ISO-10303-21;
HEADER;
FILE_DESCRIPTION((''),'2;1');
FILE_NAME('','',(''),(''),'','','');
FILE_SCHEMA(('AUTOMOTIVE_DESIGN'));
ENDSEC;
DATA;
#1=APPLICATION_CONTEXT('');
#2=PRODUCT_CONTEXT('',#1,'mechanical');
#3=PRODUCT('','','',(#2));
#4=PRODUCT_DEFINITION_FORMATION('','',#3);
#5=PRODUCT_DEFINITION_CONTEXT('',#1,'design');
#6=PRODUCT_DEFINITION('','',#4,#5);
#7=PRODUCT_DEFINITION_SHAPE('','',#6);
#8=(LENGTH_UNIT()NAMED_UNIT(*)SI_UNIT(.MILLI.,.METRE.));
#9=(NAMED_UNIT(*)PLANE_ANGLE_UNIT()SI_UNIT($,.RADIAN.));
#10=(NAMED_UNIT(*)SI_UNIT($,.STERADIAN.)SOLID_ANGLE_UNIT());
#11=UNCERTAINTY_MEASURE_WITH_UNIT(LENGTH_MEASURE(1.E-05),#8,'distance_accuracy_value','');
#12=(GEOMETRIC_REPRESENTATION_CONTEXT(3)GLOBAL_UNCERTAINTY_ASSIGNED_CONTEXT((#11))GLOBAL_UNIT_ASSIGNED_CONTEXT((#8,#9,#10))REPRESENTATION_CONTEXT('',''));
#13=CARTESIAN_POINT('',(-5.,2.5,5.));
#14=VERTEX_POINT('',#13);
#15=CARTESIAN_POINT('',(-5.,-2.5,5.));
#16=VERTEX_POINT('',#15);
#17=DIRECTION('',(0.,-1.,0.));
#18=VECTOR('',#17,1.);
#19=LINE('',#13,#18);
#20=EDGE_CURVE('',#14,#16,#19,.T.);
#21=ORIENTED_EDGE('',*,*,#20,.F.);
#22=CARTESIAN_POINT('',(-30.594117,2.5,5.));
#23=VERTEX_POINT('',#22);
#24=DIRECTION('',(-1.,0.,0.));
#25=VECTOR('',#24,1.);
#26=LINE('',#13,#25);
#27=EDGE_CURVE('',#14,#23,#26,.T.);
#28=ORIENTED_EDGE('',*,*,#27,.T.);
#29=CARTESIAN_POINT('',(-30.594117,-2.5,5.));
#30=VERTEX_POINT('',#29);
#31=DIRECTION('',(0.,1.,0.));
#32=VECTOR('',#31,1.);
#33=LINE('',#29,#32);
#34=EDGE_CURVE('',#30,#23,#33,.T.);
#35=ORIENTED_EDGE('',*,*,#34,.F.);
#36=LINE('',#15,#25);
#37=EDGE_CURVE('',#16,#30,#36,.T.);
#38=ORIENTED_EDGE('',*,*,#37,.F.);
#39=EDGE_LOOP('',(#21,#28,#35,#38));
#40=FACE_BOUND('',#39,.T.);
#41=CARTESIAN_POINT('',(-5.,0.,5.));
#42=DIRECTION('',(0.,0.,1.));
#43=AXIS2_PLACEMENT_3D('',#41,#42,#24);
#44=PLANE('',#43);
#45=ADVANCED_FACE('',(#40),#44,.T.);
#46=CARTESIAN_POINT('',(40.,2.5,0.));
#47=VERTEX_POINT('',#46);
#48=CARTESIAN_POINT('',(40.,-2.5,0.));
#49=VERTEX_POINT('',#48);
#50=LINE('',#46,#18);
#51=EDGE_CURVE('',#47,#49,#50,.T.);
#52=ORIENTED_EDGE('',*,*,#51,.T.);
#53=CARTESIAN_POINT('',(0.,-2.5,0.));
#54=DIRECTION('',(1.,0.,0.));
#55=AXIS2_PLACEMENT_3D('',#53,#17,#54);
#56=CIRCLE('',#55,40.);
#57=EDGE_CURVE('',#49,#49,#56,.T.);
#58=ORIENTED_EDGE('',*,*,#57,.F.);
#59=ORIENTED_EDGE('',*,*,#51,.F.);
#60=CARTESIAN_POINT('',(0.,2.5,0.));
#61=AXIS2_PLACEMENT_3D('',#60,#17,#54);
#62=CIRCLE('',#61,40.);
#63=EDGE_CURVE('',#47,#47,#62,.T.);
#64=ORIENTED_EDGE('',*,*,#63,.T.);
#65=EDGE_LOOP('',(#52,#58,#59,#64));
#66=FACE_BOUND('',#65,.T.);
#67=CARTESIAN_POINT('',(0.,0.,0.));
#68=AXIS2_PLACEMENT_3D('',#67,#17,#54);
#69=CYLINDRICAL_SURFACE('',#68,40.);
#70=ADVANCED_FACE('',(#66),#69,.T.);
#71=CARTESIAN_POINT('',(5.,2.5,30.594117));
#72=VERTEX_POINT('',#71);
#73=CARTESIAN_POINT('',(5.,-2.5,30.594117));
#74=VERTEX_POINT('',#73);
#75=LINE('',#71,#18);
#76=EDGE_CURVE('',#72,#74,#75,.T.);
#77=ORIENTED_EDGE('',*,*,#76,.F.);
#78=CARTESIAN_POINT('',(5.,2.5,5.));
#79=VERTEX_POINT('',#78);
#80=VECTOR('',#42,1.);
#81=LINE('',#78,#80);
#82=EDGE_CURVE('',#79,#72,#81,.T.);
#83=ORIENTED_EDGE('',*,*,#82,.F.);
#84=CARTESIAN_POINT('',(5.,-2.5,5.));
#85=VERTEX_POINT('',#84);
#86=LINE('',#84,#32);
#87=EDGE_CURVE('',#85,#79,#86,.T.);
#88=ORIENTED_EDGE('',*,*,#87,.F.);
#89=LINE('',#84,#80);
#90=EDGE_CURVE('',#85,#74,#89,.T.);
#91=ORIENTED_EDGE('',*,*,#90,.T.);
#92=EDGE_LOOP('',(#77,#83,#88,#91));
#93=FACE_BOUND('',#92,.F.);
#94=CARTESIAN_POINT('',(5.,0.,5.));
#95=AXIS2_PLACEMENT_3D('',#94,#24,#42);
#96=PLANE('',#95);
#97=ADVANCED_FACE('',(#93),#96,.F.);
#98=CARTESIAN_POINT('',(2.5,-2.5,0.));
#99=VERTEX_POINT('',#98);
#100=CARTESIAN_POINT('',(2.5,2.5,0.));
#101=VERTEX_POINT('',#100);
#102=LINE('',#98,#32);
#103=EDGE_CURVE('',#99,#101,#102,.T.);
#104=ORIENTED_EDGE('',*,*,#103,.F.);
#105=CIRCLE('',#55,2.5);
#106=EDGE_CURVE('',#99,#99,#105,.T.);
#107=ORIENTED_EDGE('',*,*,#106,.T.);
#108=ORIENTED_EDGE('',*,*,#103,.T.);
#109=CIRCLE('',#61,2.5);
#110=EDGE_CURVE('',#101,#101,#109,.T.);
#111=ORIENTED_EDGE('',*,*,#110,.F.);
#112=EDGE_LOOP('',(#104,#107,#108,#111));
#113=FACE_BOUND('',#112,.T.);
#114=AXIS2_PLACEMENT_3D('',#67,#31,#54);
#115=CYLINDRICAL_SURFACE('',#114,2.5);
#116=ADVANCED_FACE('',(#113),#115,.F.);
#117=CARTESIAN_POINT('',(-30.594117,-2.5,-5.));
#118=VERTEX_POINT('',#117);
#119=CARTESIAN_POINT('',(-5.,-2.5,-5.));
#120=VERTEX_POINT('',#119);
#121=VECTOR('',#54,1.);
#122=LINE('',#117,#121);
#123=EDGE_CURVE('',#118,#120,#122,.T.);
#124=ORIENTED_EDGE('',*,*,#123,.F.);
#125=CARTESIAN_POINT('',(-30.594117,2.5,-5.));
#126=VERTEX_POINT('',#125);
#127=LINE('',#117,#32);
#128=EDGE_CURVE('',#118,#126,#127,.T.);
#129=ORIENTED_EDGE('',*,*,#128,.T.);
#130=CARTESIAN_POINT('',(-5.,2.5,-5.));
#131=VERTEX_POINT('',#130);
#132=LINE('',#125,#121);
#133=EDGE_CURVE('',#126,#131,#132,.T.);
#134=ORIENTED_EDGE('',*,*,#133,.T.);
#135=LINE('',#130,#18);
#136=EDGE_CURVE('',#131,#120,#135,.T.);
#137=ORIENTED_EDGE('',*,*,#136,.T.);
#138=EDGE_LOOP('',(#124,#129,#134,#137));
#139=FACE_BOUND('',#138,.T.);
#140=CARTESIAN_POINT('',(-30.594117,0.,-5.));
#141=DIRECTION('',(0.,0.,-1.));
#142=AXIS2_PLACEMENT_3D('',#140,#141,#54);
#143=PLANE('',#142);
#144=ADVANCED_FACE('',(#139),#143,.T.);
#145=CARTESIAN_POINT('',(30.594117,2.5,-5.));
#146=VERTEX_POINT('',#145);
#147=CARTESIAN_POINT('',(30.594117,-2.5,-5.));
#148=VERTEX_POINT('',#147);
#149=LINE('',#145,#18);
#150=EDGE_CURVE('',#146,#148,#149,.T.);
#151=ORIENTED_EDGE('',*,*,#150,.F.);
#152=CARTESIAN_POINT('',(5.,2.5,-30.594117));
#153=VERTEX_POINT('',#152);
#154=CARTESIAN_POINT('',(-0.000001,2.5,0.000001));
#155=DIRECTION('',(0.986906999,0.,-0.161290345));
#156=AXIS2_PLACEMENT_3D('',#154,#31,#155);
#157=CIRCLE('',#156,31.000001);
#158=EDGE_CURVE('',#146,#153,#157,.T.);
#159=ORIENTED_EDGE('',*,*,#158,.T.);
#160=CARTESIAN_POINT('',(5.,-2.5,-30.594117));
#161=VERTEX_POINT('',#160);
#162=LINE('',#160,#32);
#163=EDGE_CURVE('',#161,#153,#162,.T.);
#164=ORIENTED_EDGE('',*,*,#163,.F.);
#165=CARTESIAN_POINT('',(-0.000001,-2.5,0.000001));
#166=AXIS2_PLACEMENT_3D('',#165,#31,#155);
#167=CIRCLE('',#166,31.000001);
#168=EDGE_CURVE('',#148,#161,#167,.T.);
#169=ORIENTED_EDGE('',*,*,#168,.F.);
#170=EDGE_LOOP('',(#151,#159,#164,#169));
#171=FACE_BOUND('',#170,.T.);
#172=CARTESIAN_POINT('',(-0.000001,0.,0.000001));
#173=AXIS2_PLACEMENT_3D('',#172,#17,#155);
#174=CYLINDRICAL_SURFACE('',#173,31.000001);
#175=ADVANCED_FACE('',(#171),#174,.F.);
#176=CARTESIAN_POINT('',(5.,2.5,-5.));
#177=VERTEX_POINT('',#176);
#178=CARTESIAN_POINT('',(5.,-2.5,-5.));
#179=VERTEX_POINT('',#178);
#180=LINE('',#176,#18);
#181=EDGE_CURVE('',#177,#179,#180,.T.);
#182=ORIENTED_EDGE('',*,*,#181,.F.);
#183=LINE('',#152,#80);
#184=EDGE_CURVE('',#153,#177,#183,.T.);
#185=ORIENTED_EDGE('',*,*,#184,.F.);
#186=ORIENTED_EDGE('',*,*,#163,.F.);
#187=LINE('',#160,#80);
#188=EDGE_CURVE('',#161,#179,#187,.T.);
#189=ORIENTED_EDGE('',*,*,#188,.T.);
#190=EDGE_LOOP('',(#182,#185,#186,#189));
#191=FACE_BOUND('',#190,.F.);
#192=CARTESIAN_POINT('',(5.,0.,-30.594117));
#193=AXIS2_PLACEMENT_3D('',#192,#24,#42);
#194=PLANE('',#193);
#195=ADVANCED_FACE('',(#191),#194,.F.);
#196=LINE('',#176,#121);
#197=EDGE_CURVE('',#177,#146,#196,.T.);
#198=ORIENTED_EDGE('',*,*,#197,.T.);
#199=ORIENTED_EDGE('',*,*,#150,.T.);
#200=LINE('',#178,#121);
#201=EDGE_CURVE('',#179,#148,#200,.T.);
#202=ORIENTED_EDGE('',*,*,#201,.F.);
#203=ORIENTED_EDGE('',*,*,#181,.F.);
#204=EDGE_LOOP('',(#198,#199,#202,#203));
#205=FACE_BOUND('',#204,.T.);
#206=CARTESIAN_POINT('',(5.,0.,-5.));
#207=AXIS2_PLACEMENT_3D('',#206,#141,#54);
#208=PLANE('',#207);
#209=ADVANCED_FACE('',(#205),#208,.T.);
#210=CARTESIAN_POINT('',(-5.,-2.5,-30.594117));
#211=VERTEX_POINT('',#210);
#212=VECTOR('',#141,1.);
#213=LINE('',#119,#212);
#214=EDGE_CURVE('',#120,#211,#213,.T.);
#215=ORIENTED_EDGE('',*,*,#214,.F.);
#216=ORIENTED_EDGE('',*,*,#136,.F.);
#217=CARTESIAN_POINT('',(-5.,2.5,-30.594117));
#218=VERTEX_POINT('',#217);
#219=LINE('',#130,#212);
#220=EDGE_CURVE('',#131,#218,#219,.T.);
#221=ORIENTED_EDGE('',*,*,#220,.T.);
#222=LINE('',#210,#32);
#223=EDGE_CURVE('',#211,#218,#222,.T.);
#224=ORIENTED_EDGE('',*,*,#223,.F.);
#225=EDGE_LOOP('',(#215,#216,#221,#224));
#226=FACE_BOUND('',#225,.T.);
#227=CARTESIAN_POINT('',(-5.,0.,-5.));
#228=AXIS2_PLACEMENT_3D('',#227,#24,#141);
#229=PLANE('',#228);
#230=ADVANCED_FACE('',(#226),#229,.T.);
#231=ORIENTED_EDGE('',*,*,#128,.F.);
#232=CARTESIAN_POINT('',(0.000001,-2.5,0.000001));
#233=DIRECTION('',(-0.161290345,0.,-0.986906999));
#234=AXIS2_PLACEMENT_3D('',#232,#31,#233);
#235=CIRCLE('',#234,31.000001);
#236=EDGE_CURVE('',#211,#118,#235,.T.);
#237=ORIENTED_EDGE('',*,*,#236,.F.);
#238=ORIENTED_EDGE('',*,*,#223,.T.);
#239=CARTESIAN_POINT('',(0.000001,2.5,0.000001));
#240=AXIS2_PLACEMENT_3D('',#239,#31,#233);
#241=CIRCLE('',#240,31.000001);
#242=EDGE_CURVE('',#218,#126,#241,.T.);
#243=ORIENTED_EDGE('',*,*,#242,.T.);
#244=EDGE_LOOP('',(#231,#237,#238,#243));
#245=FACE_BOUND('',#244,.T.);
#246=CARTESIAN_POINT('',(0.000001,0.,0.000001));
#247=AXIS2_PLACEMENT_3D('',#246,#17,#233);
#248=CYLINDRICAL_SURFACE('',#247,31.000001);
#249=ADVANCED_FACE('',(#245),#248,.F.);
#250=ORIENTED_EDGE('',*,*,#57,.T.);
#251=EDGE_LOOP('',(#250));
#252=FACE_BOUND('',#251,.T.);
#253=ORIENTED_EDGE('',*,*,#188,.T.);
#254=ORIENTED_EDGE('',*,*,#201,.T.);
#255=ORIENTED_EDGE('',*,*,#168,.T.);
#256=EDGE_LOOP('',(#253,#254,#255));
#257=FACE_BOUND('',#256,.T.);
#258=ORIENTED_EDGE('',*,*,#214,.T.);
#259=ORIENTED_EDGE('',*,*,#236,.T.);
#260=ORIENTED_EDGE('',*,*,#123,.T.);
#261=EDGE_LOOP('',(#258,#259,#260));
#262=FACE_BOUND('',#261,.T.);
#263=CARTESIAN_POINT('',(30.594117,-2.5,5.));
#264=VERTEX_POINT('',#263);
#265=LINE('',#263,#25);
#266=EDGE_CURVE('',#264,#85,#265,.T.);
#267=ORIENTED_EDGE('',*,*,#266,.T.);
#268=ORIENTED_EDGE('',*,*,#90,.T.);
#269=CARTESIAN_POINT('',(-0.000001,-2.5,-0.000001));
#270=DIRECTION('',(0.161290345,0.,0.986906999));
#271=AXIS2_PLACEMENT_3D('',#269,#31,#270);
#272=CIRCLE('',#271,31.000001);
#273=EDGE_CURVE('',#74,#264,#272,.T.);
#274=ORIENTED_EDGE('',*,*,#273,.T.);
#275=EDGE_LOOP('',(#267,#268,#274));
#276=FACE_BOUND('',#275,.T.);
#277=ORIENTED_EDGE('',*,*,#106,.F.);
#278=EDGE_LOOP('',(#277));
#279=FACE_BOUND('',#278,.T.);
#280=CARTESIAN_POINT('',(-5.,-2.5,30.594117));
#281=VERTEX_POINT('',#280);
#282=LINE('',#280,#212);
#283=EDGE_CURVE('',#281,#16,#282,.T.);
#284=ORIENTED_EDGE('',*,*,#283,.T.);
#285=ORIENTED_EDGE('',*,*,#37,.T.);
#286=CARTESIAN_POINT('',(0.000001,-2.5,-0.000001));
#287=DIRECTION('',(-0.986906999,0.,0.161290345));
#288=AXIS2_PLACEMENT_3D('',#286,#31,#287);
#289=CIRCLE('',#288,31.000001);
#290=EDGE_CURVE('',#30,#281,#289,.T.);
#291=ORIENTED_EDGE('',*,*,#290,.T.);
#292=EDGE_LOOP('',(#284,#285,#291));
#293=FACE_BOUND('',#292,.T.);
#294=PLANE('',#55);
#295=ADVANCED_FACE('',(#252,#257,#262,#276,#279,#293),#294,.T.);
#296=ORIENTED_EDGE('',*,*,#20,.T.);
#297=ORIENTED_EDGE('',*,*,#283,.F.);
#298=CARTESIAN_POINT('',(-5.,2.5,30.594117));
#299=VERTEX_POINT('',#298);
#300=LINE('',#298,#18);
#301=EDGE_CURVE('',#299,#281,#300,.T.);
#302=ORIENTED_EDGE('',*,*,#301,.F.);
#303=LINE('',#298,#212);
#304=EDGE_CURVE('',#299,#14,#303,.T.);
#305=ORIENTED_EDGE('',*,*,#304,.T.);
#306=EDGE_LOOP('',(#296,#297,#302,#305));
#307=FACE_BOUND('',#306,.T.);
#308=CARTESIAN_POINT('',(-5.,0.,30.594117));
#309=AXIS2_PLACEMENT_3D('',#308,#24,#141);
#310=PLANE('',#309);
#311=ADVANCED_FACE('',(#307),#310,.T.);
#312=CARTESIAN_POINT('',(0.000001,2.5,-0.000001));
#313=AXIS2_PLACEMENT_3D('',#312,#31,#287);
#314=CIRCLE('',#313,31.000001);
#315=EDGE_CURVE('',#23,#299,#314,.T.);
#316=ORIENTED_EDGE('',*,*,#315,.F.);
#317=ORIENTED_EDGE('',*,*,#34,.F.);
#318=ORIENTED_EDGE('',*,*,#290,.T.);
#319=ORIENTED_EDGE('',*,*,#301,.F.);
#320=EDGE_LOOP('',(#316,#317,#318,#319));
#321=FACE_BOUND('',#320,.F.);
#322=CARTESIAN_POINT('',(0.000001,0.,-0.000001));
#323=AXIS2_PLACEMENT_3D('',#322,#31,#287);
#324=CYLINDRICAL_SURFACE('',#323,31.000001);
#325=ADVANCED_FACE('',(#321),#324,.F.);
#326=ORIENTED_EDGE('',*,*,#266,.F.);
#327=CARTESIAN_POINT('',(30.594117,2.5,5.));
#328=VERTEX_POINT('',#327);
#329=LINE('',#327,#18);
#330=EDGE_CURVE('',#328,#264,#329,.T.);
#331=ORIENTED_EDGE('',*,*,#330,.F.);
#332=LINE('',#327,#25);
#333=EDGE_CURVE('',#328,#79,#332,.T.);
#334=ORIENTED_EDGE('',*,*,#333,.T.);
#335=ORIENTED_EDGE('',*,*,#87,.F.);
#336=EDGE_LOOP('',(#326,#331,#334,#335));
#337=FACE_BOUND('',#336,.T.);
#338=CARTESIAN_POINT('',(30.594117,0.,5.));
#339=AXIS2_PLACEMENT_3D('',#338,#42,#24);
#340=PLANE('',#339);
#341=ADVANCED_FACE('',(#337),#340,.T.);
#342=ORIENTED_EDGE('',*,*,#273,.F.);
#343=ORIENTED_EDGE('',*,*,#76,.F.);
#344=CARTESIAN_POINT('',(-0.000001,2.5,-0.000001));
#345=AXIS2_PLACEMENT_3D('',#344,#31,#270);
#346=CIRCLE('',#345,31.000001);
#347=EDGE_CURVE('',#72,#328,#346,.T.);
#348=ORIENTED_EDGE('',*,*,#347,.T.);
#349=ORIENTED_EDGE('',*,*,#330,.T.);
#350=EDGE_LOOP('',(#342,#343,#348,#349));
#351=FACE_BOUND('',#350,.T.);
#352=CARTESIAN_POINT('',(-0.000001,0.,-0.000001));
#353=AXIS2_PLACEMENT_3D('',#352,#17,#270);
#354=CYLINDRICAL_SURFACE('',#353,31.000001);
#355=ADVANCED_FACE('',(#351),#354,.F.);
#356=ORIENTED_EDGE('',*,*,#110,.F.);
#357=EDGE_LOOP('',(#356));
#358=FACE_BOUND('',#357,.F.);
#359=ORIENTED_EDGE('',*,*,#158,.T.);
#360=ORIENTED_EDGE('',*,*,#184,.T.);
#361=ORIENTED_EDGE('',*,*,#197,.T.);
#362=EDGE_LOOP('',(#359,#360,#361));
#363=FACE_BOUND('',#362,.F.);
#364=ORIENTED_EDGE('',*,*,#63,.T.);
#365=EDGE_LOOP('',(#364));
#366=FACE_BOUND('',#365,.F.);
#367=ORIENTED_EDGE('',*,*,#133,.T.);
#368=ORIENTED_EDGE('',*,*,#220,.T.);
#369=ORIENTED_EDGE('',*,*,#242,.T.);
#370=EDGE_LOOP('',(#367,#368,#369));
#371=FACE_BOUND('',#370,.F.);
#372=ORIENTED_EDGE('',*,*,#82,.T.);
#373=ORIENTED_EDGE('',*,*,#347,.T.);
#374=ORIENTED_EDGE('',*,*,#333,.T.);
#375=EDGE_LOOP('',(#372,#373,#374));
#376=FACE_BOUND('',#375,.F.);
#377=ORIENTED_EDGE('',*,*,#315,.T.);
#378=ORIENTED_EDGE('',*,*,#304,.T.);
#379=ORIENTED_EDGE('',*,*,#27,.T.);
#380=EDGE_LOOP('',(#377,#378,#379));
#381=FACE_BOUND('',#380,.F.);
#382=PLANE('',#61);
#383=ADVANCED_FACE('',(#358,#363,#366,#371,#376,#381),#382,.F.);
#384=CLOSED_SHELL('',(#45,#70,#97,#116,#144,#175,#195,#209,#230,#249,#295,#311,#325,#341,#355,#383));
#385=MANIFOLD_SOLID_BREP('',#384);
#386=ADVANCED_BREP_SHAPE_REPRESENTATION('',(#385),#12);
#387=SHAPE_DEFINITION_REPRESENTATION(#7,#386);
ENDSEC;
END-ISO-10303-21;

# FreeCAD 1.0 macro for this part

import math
import FreeCAD as App
import Part
import Sketcher
Q = App.Units.Quantity

doc = App.newDocument("Part")
body = doc.addObject("PartDesign::Body", "Body")

# Sketch on XZ plane
sketch1 = body.newObject("Sketcher::SketchObject", "Sketch")
sketch1.AttachmentSupport = (doc.getObject("XZ_Plane"), [""])
sketch1.MapMode = "FlatFace"
sketch1.addGeometry(Part.Circle(App.Vector(0, 0, 0), App.Vector(0, 0, 1), 40), False)
sketch1.addGeometry(Part.LineSegment(App.Vector(-30.6, -5, 0), App.Vector(-5, -5, 0)), False)
sketch1.addGeometry(Part.LineSegment(App.Vector(-5, -5, 0), App.Vector(-5, -30.6, 0)), False)
sketch1.addGeometry(Part.ArcOfCircle(Part.Circle(App.Vector(0, 0, 0), App.Vector(0, 0, 1), 31), math.radians(-171), math.radians(-99)), False)
sketch1.addGeometry(Part.Circle(App.Vector(0, 0, 0), App.Vector(0, 0, 1), 2.5), False)
sketch1.addGeometry(Part.ArcOfCircle(Part.Circle(App.Vector(0, 0, 0), App.Vector(0, 0, 1), 31), math.radians(-81), math.radians(-9)), False)
sketch1.addGeometry(Part.LineSegment(App.Vector(5, -30.6, 0), App.Vector(5, -5, 0)), False)
sketch1.addGeometry(Part.LineSegment(App.Vector(5, -5, 0), App.Vector(30.6, -5, 0)), False)
sketch1.addGeometry(Part.LineSegment(App.Vector(-5, 5, 0), App.Vector(-30.6, 5, 0)), False)
sketch1.addGeometry(Part.ArcOfCircle(Part.Circle(App.Vector(0, 0, 0), App.Vector(0, 0, 1), 31), math.radians(99), math.radians(171)), False)
sketch1.addGeometry(Part.LineSegment(App.Vector(-5, 30.6, 0), App.Vector(-5, 5, 0)), False)
sketch1.addGeometry(Part.LineSegment(App.Vector(30.6, 5, 0), App.Vector(5, 5, 0)), False)
sketch1.addGeometry(Part.LineSegment(App.Vector(5, 5, 0), App.Vector(5, 30.6, 0)), False)
sketch1.addGeometry(Part.ArcOfCircle(Part.Circle(App.Vector(0, 0, 0), App.Vector(0, 0, 1), 31), math.radians(9), math.radians(81)), False)
sketch1.addConstraint(Sketcher.Constraint("Coincident", 1, 2, 2, 1))
sketch1.addConstraint(Sketcher.Constraint("Coincident", 2, 2, 3, 2))
sketch1.addConstraint(Sketcher.Constraint("Coincident", 3, 1, 1, 1))
sketch1.addConstraint(Sketcher.Constraint("Coincident", 5, 1, 6, 1))
sketch1.addConstraint(Sketcher.Constraint("Coincident", 6, 2, 7, 1))
sketch1.addConstraint(Sketcher.Constraint("Coincident", 7, 2, 5, 2))
sketch1.addConstraint(Sketcher.Constraint("Coincident", 8, 2, 9, 2))
sketch1.addConstraint(Sketcher.Constraint("Coincident", 9, 1, 10, 1))
sketch1.addConstraint(Sketcher.Constraint("Coincident", 10, 2, 8, 1))
sketch1.addConstraint(Sketcher.Constraint("Coincident", 11, 2, 12, 1))
sketch1.addConstraint(Sketcher.Constraint("Coincident", 12, 2, 13, 2))
sketch1.addConstraint(Sketcher.Constraint("Coincident", 13, 1, 11, 1))
sketch1.addConstraint(Sketcher.Constraint("Horizontal", 1))
sketch1.addConstraint(Sketcher.Constraint("Vertical", 2))
sketch1.addConstraint(Sketcher.Constraint("Vertical", 6))
sketch1.addConstraint(Sketcher.Constraint("Horizontal", 7))
sketch1.addConstraint(Sketcher.Constraint("Horizontal", 8))
sketch1.addConstraint(Sketcher.Constraint("Vertical", 10))
sketch1.addConstraint(Sketcher.Constraint("Horizontal", 11))
sketch1.addConstraint(Sketcher.Constraint("Vertical", 12))
sketch1.addConstraint(Sketcher.Constraint("Coincident", 0, 3, -1, 1))
sketch1.addConstraint(Sketcher.Constraint("Coincident", 3, 3, -1, 1))
sketch1.addConstraint(Sketcher.Constraint("Coincident", 4, 3, -1, 1))
sketch1.addConstraint(Sketcher.Constraint("Coincident", 5, 3, -1, 1))
sketch1.addConstraint(Sketcher.Constraint("Coincident", 9, 3, -1, 1))
sketch1.addConstraint(Sketcher.Constraint("Coincident", 13, 3, -1, 1))
sketch1.addConstraint(Sketcher.Constraint("Equal", 3, 5))
sketch1.addConstraint(Sketcher.Constraint("Equal", 5, 9))
sketch1.addConstraint(Sketcher.Constraint("Equal", 9, 13))
sketch1.addConstraint(Sketcher.Constraint("Symmetric", 6, 2, 10, 2, -1, 1))
sketch1.addConstraint(Sketcher.Constraint("Symmetric", 1, 2, 11, 2, -1, 1))
sketch1.addConstraint(Sketcher.Constraint("Symmetric", 1, 2, 6, 2, -2))
sketch1.addConstraint(Sketcher.Constraint("Equal", 11, 2))
sketch1.addConstraint(Sketcher.Constraint("Diameter", 0, Q("80 mm")))
sketch1.addConstraint(Sketcher.Constraint("Diameter", 4, Q("5 mm")))
sketch1.addConstraint(Sketcher.Constraint("Radius", 3, Q("31.000001 mm")))
sketch1.addConstraint(Sketcher.Constraint("DistanceX", 1, 2, -1, 1, Q("5 mm")))
pad1 = body.newObject("PartDesign::Pad", "Pad")
pad1.Profile = sketch1
pad1.Length = 5
pad1.Midplane = True

doc.recompute()
